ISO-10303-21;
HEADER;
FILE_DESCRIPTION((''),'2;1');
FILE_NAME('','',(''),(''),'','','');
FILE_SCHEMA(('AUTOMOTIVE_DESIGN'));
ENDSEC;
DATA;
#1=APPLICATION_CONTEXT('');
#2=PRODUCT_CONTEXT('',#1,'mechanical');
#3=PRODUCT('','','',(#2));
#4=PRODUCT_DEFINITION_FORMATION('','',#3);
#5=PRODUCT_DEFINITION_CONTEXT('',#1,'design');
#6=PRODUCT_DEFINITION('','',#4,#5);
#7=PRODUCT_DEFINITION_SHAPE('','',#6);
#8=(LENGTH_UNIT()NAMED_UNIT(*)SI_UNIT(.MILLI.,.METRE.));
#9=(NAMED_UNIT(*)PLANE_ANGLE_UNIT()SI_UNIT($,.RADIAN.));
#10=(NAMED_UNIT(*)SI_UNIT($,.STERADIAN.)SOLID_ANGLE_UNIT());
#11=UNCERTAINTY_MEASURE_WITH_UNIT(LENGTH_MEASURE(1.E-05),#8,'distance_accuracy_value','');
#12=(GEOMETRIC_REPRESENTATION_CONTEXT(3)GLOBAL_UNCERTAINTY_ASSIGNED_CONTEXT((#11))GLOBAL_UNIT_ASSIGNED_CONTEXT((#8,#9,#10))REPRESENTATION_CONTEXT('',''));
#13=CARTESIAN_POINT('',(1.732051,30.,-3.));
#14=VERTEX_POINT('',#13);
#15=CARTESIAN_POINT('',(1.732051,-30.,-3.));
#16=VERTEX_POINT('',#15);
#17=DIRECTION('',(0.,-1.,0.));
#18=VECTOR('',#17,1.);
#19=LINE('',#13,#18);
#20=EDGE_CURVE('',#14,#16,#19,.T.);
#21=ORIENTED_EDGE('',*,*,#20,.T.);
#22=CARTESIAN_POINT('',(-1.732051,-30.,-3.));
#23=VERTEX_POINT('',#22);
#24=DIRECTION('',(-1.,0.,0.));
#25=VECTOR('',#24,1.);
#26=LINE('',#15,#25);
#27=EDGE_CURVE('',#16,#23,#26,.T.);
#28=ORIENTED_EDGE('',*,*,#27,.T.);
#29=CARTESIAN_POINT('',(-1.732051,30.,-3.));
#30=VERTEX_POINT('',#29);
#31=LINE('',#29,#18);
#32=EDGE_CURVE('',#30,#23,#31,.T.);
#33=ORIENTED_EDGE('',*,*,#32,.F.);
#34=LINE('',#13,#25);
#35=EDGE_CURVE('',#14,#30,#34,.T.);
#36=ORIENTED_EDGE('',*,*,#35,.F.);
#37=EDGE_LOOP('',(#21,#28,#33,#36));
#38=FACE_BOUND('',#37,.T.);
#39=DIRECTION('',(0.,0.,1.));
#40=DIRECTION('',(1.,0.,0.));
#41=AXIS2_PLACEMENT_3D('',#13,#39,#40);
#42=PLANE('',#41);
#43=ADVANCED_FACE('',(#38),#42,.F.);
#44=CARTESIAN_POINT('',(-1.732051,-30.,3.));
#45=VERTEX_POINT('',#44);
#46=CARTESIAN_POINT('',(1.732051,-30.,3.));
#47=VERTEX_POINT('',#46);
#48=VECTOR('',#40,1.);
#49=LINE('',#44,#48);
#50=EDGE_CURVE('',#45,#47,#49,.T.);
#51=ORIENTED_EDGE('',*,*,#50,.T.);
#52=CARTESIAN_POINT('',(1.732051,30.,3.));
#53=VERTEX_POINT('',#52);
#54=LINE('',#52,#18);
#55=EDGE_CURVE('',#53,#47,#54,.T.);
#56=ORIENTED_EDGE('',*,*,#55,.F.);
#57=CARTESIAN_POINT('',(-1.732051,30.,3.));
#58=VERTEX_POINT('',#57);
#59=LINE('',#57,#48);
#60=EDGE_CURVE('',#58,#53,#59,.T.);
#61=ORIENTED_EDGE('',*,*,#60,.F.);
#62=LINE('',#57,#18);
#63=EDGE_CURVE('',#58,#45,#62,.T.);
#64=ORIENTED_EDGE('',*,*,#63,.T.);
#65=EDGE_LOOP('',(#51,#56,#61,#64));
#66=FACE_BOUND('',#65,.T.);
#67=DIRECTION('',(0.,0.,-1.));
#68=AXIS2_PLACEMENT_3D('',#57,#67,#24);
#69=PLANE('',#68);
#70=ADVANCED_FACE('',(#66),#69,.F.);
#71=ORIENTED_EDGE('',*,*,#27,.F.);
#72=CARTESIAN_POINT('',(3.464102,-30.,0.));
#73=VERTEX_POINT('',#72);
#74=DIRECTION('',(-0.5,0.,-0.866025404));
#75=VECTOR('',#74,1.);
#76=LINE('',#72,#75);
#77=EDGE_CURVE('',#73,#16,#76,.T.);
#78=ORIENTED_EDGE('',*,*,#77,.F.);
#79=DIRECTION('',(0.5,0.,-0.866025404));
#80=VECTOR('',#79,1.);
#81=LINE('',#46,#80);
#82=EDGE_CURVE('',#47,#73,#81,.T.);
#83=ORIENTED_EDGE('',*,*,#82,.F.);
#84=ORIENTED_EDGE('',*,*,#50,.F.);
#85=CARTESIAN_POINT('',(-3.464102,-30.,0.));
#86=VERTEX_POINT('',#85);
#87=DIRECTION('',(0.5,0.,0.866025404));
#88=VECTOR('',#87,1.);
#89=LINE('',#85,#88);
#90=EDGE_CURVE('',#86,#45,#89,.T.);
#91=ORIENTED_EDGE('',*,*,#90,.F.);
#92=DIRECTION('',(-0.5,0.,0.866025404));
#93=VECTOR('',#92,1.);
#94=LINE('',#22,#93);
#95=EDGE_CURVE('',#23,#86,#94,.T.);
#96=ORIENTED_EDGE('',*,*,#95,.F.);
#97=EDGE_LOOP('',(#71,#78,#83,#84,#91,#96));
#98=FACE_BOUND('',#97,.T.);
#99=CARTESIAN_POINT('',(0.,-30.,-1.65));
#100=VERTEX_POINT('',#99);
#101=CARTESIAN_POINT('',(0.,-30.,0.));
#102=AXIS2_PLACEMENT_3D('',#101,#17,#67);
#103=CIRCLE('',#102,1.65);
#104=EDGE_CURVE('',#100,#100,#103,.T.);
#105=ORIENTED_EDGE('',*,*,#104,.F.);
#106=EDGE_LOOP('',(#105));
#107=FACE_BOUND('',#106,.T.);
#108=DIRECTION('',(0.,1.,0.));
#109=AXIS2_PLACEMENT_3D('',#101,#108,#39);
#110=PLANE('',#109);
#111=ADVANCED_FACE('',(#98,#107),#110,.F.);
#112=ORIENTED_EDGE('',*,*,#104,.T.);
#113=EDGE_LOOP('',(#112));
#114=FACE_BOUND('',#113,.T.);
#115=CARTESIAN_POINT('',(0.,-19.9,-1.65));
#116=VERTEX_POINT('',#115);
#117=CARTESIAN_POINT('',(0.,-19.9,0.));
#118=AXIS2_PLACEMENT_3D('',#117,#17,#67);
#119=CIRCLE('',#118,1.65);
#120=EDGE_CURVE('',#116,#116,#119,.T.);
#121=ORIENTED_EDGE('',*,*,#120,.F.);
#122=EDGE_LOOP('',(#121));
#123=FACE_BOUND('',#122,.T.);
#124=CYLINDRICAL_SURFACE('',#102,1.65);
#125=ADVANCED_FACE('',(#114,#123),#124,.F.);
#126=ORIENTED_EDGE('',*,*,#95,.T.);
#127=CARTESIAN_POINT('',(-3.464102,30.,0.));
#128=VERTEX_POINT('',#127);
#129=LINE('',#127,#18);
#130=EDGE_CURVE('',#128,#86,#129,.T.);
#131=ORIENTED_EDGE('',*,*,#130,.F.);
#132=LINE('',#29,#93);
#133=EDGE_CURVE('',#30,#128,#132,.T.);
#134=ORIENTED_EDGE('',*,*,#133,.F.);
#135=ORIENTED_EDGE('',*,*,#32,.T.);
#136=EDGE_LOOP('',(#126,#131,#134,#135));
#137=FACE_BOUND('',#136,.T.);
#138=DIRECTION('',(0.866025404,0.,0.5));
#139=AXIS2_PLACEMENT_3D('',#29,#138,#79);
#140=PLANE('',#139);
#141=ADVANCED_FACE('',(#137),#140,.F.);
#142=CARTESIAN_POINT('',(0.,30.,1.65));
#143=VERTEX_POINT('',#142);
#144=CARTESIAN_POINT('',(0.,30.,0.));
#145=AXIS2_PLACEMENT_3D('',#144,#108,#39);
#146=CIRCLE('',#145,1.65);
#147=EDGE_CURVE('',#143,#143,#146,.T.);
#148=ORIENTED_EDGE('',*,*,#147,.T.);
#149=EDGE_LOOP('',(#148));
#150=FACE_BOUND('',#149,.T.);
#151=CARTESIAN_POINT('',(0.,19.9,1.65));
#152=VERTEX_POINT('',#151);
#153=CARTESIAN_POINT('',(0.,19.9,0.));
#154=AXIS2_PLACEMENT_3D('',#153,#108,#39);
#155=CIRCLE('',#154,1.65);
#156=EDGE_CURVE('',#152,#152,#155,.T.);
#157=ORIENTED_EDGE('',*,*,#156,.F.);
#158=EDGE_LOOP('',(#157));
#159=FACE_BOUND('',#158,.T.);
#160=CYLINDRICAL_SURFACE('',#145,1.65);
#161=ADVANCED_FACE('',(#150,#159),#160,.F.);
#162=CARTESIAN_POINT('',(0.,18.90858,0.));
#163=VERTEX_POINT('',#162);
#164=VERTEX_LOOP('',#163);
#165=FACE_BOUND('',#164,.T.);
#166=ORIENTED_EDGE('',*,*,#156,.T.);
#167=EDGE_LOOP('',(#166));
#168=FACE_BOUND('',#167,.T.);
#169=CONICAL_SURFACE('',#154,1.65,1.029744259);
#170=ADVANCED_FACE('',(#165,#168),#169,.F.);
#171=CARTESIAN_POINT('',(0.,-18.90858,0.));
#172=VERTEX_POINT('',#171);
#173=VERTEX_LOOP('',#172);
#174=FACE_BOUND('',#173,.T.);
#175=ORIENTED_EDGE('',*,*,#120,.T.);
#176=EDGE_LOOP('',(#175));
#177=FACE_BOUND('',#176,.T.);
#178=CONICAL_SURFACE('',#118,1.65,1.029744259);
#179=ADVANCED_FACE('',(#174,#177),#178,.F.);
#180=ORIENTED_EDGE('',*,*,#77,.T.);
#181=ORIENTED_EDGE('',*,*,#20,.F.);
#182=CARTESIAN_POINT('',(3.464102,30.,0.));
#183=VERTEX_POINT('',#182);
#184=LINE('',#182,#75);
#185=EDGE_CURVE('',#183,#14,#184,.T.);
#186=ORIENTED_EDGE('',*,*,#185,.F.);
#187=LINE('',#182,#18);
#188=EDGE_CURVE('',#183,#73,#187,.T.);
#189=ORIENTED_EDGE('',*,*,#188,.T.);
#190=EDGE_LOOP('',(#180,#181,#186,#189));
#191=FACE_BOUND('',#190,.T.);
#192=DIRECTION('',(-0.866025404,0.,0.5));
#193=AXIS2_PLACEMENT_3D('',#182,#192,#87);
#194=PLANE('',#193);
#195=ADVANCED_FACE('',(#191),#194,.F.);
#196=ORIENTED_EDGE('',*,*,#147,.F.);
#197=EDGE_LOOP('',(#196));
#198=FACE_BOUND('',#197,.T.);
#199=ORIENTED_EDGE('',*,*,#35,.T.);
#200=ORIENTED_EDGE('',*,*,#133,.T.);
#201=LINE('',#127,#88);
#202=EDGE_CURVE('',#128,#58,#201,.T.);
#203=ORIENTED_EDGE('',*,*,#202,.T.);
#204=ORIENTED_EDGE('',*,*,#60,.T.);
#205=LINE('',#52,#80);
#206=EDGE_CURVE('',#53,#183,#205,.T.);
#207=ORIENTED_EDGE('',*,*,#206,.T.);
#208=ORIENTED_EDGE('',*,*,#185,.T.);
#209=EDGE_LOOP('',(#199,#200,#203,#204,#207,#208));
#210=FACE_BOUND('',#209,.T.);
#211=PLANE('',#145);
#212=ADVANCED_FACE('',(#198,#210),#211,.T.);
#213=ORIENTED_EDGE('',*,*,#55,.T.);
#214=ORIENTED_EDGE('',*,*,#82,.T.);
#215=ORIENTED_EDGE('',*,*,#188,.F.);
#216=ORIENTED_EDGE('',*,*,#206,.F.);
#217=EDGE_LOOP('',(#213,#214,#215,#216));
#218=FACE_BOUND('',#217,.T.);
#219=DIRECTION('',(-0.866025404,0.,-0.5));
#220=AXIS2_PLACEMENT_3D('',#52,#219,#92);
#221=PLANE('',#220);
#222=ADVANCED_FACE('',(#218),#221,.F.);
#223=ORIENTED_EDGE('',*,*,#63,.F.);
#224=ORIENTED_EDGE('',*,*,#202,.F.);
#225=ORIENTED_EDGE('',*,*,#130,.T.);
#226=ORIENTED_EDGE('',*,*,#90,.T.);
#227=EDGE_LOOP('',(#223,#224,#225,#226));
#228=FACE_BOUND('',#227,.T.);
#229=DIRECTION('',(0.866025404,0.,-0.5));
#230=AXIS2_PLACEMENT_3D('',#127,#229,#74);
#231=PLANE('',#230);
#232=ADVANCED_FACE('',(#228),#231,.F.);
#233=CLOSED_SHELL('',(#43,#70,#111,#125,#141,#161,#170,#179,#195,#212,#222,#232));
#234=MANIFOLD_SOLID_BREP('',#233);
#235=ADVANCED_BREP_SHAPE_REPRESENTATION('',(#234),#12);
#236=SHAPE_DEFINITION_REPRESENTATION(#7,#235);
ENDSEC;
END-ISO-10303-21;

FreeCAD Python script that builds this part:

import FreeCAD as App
import Part
import Sketcher
from FreeCAD import Vector
Q = App.Units.Quantity

doc = App.newDocument("Part")
body = doc.addObject("PartDesign::Body", "Body")

# Sketch on XZ plane
sketch1 = body.newObject("Sketcher::SketchObject", "Sketch")
sketch1.AttachmentSupport = (doc.getObject("XZ_Plane"), [""])
sketch1.MapMode = "FlatFace"
sketch1.addGeometry([
    Part.LineSegment(Vector(3.5, 0, 0), Vector(1.7, -3, 0)),  # 0
    Part.LineSegment(Vector(1.7, -3, 0), Vector(-1.7, -3, 0)),  # 1
    Part.LineSegment(Vector(-1.7, -3, 0), Vector(-3.5, 0, 0)),  # 2
    Part.LineSegment(Vector(-3.5, 0, 0), Vector(-1.7, 3, 0)),  # 3
    Part.LineSegment(Vector(-1.7, 3, 0), Vector(1.7, 3, 0)),  # 4
    Part.LineSegment(Vector(1.7, 3, 0), Vector(3.5, 0, 0)),  # 5
], False)
sketch1.addConstraint([
    Sketcher.Constraint("Coincident", 0, 2, 1, 1),
    Sketcher.Constraint("Coincident", 1, 2, 2, 1),
    Sketcher.Constraint("Coincident", 2, 2, 3, 1),
    Sketcher.Constraint("Coincident", 3, 2, 4, 1),
    Sketcher.Constraint("Coincident", 4, 2, 5, 1),
    Sketcher.Constraint("Coincident", 5, 2, 0, 1),
    Sketcher.Constraint("Horizontal", 1),
    Sketcher.Constraint("Horizontal", 4),
    Sketcher.Constraint("Symmetric", 0, 2, 3, 2, -1, 1),
    Sketcher.Constraint("Symmetric", 2, 2, 5, 2, -1, 1),
    Sketcher.Constraint("PointOnObject", 2, 2, -1),
    Sketcher.Constraint("Parallel", 2, 5),
    Sketcher.Constraint("Vertical", 1, 2, 3, 2),
    Sketcher.Constraint("Angle", 0, Q("-120 deg")),
    Sketcher.Constraint("DistanceY", 0, 2, -1, 1, Q("3 mm")),
    Sketcher.Constraint("DistanceX", 1, 2, 1, 1, Q("3.464102 mm")),
])
pad1 = body.newObject("PartDesign::Pad", "Pad")
pad1.Profile = sketch1
pad1.Length = 60
pad1.Midplane = True

# Sketch on YZ plane
sketch2 = body.newObject("Sketcher::SketchObject", "Sketch001")
sketch2.AttachmentSupport = (doc.getObject("YZ_Plane"), [""])
sketch2.MapMode = "FlatFace"
sketch2.addGeometry([
    Part.LineSegment(Vector(18.9, 0, 0), Vector(30, 0, 0)),
    Part.LineSegment(Vector(30, 0, 0), Vector(30, 1.6, 0)),
    Part.LineSegment(Vector(30, 1.6, 0), Vector(19.9, 1.6, 0)),
    Part.LineSegment(Vector(19.9, 1.6, 0), Vector(18.9, 0, 0)),
], False)
sketch2.addConstraint([
    Sketcher.Constraint("Coincident", 0, 2, 1, 1),
    Sketcher.Constraint("Coincident", 1, 2, 2, 1),
    Sketcher.Constraint("Coincident", 2, 2, 3, 1),
    Sketcher.Constraint("Coincident", 3, 2, 0, 1),
    Sketcher.Constraint("Horizontal", 0),
    Sketcher.Constraint("Vertical", 1),
    Sketcher.Constraint("Horizontal", 2),
    Sketcher.Constraint("PointOnObject", 0, 2, -1),
    Sketcher.Constraint("Angle", 3, Q("-121 deg")),
    Sketcher.Constraint("DistanceX", 2, 2, 2, 1, Q("10.1 mm")),
    Sketcher.Constraint("DistanceX", -1, 1, 0, 2, Q("30 mm")),
    Sketcher.Constraint("DistanceY", 1, 1, 1, 2, Q("1.65 mm")),
])
groove = body.newObject("PartDesign::Groove", "Groove")
groove.Profile = sketch2
groove.ReferenceAxis = (sketch2, ["H_Axis"])
groove.Angle = 360
doc.recompute()

mirrored = body.newObject("PartDesign::Mirrored", "Mirrored")
mirrored.Originals = [groove]
mirrored.MirrorPlane = (doc.getObject("XZ_Plane"), [""])
body.Tip = mirrored

doc.recompute()
